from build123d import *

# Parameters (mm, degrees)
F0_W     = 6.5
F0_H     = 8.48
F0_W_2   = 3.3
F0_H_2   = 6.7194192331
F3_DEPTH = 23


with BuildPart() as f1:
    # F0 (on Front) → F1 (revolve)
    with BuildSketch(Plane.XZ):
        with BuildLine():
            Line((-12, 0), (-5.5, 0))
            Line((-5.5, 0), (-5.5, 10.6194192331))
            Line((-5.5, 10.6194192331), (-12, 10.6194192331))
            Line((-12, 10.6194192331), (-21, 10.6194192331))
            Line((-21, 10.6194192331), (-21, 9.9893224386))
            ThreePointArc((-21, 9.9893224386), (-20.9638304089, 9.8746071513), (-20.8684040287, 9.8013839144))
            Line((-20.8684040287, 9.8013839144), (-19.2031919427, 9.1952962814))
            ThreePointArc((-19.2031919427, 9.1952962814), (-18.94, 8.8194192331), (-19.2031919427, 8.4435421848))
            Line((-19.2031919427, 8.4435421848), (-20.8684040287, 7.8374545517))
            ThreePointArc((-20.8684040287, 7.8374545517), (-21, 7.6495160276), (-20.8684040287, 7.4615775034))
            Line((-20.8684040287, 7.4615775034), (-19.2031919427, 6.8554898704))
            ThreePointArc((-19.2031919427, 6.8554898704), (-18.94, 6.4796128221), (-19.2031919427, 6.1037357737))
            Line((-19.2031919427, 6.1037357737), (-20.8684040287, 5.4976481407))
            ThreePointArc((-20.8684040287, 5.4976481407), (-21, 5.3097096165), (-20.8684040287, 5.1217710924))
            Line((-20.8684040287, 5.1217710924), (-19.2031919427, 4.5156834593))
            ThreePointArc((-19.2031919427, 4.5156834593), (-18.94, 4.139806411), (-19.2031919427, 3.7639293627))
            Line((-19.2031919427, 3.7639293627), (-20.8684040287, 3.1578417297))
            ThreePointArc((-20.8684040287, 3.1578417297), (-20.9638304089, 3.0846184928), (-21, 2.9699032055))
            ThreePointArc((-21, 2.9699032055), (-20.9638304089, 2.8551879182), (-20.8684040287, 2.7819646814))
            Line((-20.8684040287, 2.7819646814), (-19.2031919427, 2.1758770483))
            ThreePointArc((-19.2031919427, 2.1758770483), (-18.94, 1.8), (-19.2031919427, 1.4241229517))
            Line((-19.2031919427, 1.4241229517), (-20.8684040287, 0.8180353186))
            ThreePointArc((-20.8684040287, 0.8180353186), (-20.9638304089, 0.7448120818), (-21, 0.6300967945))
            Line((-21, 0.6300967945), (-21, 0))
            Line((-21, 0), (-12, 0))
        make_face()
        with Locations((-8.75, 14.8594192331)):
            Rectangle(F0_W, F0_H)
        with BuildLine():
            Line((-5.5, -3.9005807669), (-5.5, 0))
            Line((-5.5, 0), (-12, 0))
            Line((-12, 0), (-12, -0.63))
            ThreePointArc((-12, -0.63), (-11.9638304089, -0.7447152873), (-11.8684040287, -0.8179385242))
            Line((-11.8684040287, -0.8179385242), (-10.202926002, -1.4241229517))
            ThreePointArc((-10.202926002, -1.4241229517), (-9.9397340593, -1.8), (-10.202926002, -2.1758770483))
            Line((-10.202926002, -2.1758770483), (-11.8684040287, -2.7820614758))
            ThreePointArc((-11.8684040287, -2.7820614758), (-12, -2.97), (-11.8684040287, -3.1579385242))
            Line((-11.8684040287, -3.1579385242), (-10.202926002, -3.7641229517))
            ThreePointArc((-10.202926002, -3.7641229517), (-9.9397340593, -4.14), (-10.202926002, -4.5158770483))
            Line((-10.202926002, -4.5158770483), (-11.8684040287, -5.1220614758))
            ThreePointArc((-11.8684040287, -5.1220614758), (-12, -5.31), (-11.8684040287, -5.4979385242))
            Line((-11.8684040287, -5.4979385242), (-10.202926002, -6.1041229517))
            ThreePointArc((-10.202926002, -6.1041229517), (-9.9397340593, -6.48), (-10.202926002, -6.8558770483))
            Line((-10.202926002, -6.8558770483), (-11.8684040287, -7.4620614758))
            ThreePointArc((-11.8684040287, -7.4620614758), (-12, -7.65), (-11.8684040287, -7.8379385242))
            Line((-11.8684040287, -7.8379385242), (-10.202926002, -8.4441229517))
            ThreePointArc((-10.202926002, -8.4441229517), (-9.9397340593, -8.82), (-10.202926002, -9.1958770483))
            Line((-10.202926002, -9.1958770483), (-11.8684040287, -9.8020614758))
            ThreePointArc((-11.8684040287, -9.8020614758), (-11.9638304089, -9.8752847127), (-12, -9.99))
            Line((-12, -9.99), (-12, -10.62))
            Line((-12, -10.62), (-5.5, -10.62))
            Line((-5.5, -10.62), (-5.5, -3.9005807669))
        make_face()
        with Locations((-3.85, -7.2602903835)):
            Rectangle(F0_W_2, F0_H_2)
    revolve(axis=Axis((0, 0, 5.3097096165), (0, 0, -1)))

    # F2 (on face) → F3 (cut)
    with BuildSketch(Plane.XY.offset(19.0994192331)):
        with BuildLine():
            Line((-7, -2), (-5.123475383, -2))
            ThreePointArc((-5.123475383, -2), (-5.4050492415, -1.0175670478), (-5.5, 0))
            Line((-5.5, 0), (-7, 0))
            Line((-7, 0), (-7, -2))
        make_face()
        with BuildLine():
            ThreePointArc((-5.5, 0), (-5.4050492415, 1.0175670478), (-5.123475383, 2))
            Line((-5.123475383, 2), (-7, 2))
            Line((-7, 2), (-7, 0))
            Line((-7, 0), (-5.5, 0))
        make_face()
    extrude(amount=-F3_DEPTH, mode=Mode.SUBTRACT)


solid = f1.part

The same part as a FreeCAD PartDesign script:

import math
import FreeCAD as App
import Part
import Sketcher
from FreeCAD import Vector
Q = App.Units.Quantity

doc = App.newDocument("Part")
body = doc.addObject("PartDesign::Body", "Body")

sketch1 = body.newObject("Sketcher::SketchObject", "Sketch")
sketch1.AttachmentSupport = (doc.getObject("XZ_Plane"), [""])
sketch1.MapMode = "FlatFace"
sketch1.addGeometry([
    Part.LineSegment(Vector(-5.5, 19.1, 0), Vector(-12, 19.1, 0)),
    Part.LineSegment(Vector(-12, 19.1, 0), Vector(-12, 10.62, 0)),
    Part.LineSegment(Vector(-12, 10.62, 0), Vector(-21, 10.62, 0)),
    Part.LineSegment(Vector(-21, 10.62, 0), Vector(-21, 9.99, 0)),
    Part.ArcOfCircle(Part.Circle(Vector(-20.8, 9.99, 0), Vector(0, 0, 1), 0.2), math.radians(180), math.radians(250)),
    Part.LineSegment(Vector(-20.87, 9.8, 0), Vector(-19.2, 9.2, 0)),
    Part.ArcOfCircle(Part.Circle(Vector(-19.34, 8.82, 0), Vector(0, 0, 1), 0.4), math.radians(-70), math.radians(70)),
    Part.LineSegment(Vector(-19.2, 8.44, 0), Vector(-20.87, 7.84, 0)),
    Part.ArcOfCircle(Part.Circle(Vector(-20.8, 7.65, 0), Vector(0, 0, 1), 0.2), math.radians(110), math.radians(250)),
    Part.LineSegment(Vector(-20.87, 7.46, 0), Vector(-19.2, 6.86, 0)),
    Part.ArcOfCircle(Part.Circle(Vector(-19.34, 6.48, 0), Vector(0, 0, 1), 0.4), math.radians(-70), math.radians(70)),
    Part.LineSegment(Vector(-19.2, 6.1, 0), Vector(-20.87, 5.5, 0)),
    Part.ArcOfCircle(Part.Circle(Vector(-20.8, 5.31, 0), Vector(0, 0, 1), 0.2), math.radians(110), math.radians(250)),
    Part.LineSegment(Vector(-20.87, 5.12, 0), Vector(-19.2, 4.52, 0)),
    Part.ArcOfCircle(Part.Circle(Vector(-19.34, 4.14, 0), Vector(0, 0, 1), 0.4), math.radians(-70), math.radians(70)),
    Part.LineSegment(Vector(-19.2, 3.76, 0), Vector(-20.87, 3.16, 0)),
    Part.ArcOfCircle(Part.Circle(Vector(-20.8, 2.97, 0), Vector(0, 0, 1), 0.2), math.radians(110), math.radians(180)),
    Part.ArcOfCircle(Part.Circle(Vector(-20.8, 2.97, 0), Vector(0, 0, 1), 0.2), math.radians(180), math.radians(250)),
    Part.LineSegment(Vector(-20.87, 2.78, 0), Vector(-19.2, 2.18, 0)),
    Part.ArcOfCircle(Part.Circle(Vector(-19.34, 1.8, 0), Vector(0, 0, 1), 0.4), math.radians(-70), math.radians(70)),
    Part.LineSegment(Vector(-19.2, 1.42, 0), Vector(-20.87, 0.82, 0)),
    Part.ArcOfCircle(Part.Circle(Vector(-20.8, 0.63, 0), Vector(0, 0, 1), 0.2), math.radians(110), math.radians(180)),
    Part.LineSegment(Vector(-21, 0.63, 0), Vector(-21, 0, 0)),
    Part.LineSegment(Vector(-21, 0, 0), Vector(-12, 0, 0)),
    Part.LineSegment(Vector(-12, 0, 0), Vector(-12, -0.63, 0)),
    Part.ArcOfCircle(Part.Circle(Vector(-11.8, -0.63, 0), Vector(0, 0, 1), 0.2), math.radians(180), math.radians(250)),
    Part.LineSegment(Vector(-11.87, -0.82, 0), Vector(-10.2, -1.42, 0)),
    Part.ArcOfCircle(Part.Circle(Vector(-10.34, -1.8, 0), Vector(0, 0, 1), 0.4), math.radians(-70), math.radians(70)),
    Part.LineSegment(Vector(-10.2, -2.18, 0), Vector(-11.87, -2.78, 0)),
    Part.ArcOfCircle(Part.Circle(Vector(-11.8, -2.97, 0), Vector(0, 0, 1), 0.2), math.radians(110), math.radians(250)),
    Part.LineSegment(Vector(-11.87, -3.16, 0), Vector(-10.2, -3.76, 0)),
    Part.ArcOfCircle(Part.Circle(Vector(-10.34, -4.14, 0), Vector(0, 0, 1), 0.4), math.radians(-70), math.radians(70)),
    Part.LineSegment(Vector(-10.2, -4.52, 0), Vector(-11.87, -5.12, 0)),
    Part.ArcOfCircle(Part.Circle(Vector(-11.8, -5.31, 0), Vector(0, 0, 1), 0.2), math.radians(110), math.radians(250)),
    Part.LineSegment(Vector(-11.87, -5.5, 0), Vector(-10.2, -6.1, 0)),
    Part.ArcOfCircle(Part.Circle(Vector(-10.34, -6.48, 0), Vector(0, 0, 1), 0.4), math.radians(-70), math.radians(70)),
    Part.LineSegment(Vector(-10.2, -6.86, 0), Vector(-11.87, -7.46, 0)),
    Part.ArcOfCircle(Part.Circle(Vector(-11.8, -7.65, 0), Vector(0, 0, 1), 0.2), math.radians(110), math.radians(250)),
    Part.LineSegment(Vector(-11.87, -7.84, 0), Vector(-10.2, -8.44, 0)),
    Part.ArcOfCircle(Part.Circle(Vector(-10.34, -8.82, 0), Vector(0, 0, 1), 0.4), math.radians(-70), math.radians(70)),
    Part.LineSegment(Vector(-10.2, -9.2, 0), Vector(-11.87, -9.8, 0)),
    Part.ArcOfCircle(Part.Circle(Vector(-11.8, -9.99, 0), Vector(0, 0, 1), 0.2), math.radians(110), math.radians(180)),
    Part.LineSegment(Vector(-12, -9.99, 0), Vector(-12, -10.62, 0)),
    Part.LineSegment(Vector(-12, -10.62, 0), Vector(-5.5, -10.62, 0)),
    Part.LineSegment(Vector(-5.5, -10.62, 0), Vector(-2.2, -10.62, 0)),
    Part.LineSegment(Vector(-2.2, -10.62, 0), Vector(-2.2, -3.9, 0)),
    Part.LineSegment(Vector(-2.2, -3.9, 0), Vector(-5.5, -3.9, 0)),
    Part.LineSegment(Vector(-5.5, -3.9, 0), Vector(-5.5, 19.1, 0)),
], False)
sketch1.addConstraint([
    Sketcher.Constraint("Coincident", 0, 2, 1, 1),
    Sketcher.Constraint("Coincident", 1, 2, 2, 1),
    Sketcher.Constraint("Coincident", 2, 2, 3, 1),
    Sketcher.Constraint("Tangent", 3, 2, 4, 1),
    Sketcher.Constraint("Tangent", 4, 2, 5, 1),
    Sketcher.Constraint("Tangent", 5, 2, 6, 2),
    Sketcher.Constraint("Tangent", 6, 1, 7, 1),
    Sketcher.Constraint("Tangent", 7, 2, 8, 1),
    Sketcher.Constraint("Tangent", 8, 2, 9, 1),
    Sketcher.Constraint("Tangent", 9, 2, 10, 2),
    Sketcher.Constraint("Tangent", 10, 1, 11, 1),
    Sketcher.Constraint("Tangent", 11, 2, 12, 1),
    Sketcher.Constraint("Tangent", 12, 2, 13, 1),
    Sketcher.Constraint("Tangent", 13, 2, 14, 2),
    Sketcher.Constraint("Tangent", 14, 1, 15, 1),
    Sketcher.Constraint("Tangent", 15, 2, 16, 1),
    Sketcher.Constraint("Tangent", 16, 2, 17, 1),
    Sketcher.Constraint("Tangent", 17, 2, 18, 1),
    Sketcher.Constraint("Tangent", 18, 2, 19, 2),
    Sketcher.Constraint("Tangent", 19, 1, 20, 1),
    Sketcher.Constraint("Tangent", 20, 2, 21, 1),
    Sketcher.Constraint("Tangent", 21, 2, 22, 1),
    Sketcher.Constraint("Coincident", 22, 2, 23, 1),
    Sketcher.Constraint("Coincident", 23, 2, 24, 1),
    Sketcher.Constraint("Tangent", 24, 2, 25, 1),
    Sketcher.Constraint("Tangent", 25, 2, 26, 1),
    Sketcher.Constraint("Tangent", 26, 2, 27, 2),
    Sketcher.Constraint("Tangent", 27, 1, 28, 1),
    Sketcher.Constraint("Tangent", 28, 2, 29, 1),
    Sketcher.Constraint("Tangent", 29, 2, 30, 1),
    Sketcher.Constraint("Tangent", 30, 2, 31, 2),
    Sketcher.Constraint("Tangent", 31, 1, 32, 1),
    Sketcher.Constraint("Tangent", 32, 2, 33, 1),
    Sketcher.Constraint("Tangent", 33, 2, 34, 1),
    Sketcher.Constraint("Tangent", 34, 2, 35, 2),
    Sketcher.Constraint("Tangent", 35, 1, 36, 1),
    Sketcher.Constraint("Tangent", 36, 2, 37, 1),
    Sketcher.Constraint("Tangent", 37, 2, 38, 1),
    Sketcher.Constraint("Tangent", 38, 2, 39, 2),
    Sketcher.Constraint("Tangent", 39, 1, 40, 1),
    Sketcher.Constraint("Tangent", 40, 2, 41, 1),
    Sketcher.Constraint("Tangent", 41, 2, 42, 1),
    Sketcher.Constraint("Coincident", 42, 2, 43, 1),
    Sketcher.Constraint("Coincident", 43, 2, 44, 1),
    Sketcher.Constraint("Coincident", 44, 2, 45, 1),
    Sketcher.Constraint("Coincident", 45, 2, 46, 1),
    Sketcher.Constraint("Coincident", 46, 2, 47, 1),
    Sketcher.Constraint("Coincident", 47, 2, 0, 1),
    Sketcher.Constraint("Horizontal", 0),
    Sketcher.Constraint("Vertical", 1),
    Sketcher.Constraint("Horizontal", 2),
    Sketcher.Constraint("Vertical", 3),
    Sketcher.Constraint("Vertical", 22),
    Sketcher.Constraint("Horizontal", 23),
    Sketcher.Constraint("Vertical", 24),
    Sketcher.Constraint("Vertical", 42),
    Sketcher.Constraint("Horizontal", 43),
    Sketcher.Constraint("Horizontal", 44),
    Sketcher.Constraint("Vertical", 45),
    Sketcher.Constraint("Horizontal", 46),
    Sketcher.Constraint("Vertical", 47),
    Sketcher.Constraint("Equal", 4, 8),
    Sketcher.Constraint("Equal", 6, 10),
    Sketcher.Constraint("Equal", 8, 12),
    Sketcher.Constraint("Equal", 10, 14),
    Sketcher.Constraint("Equal", 12, 16),
    Sketcher.Constraint("Equal", 16, 17),
    Sketcher.Constraint("Equal", 14, 19),
    Sketcher.Constraint("Equal", 17, 21),
    Sketcher.Constraint("Equal", 21, 25),
    Sketcher.Constraint("Equal", 19, 27),
    Sketcher.Constraint("Equal", 25, 29),
    Sketcher.Constraint("Equal", 27, 31),
    Sketcher.Constraint("Equal", 29, 33),
    Sketcher.Constraint("Equal", 31, 35),
    Sketcher.Constraint("Equal", 33, 37),
    Sketcher.Constraint("Equal", 35, 39),
    Sketcher.Constraint("Equal", 37, 41),
    Sketcher.Constraint("PointOnObject", 22, 2, -1),
    Sketcher.Constraint("Parallel", 5, 9),
    Sketcher.Constraint("Parallel", 7, 11),
    Sketcher.Constraint("Parallel", 9, 13),
    Sketcher.Constraint("Parallel", 11, 15),
    Sketcher.Constraint("Parallel", 13, 18),
    Sketcher.Constraint("Parallel", 15, 20),
    Sketcher.Constraint("Parallel", 18, 26),
    Sketcher.Constraint("Parallel", 20, 28),
    Sketcher.Constraint("Parallel", 26, 30),
    Sketcher.Constraint("Parallel", 28, 32),
    Sketcher.Constraint("Parallel", 30, 34),
    Sketcher.Constraint("Parallel", 32, 36),
    Sketcher.Constraint("Parallel", 34, 38),
    Sketcher.Constraint("Parallel", 36, 40),
    Sketcher.Constraint("Horizontal", 17, 3, 16, 2),
    Sketcher.Constraint("Vertical", 4, 3, 8, 3),
    Sketcher.Constraint("Vertical", 6, 3, 10, 3),
    Sketcher.Constraint("Vertical", 8, 3, 12, 3),
    Sketcher.Constraint("Vertical", 10, 3, 14, 3),
    Sketcher.Constraint("Vertical", 12, 3, 16, 3),
    Sketcher.Constraint("Vertical", 14, 3, 19, 3),
    Sketcher.Constraint("Vertical", 17, 3, 21, 3),
    Sketcher.Constraint("Vertical", 25, 3, 29, 3),
    Sketcher.Constraint("Vertical", 27, 3, 31, 3),
    Sketcher.Constraint("Vertical", 29, 3, 33, 3),
    Sketcher.Constraint("Vertical", 31, 3, 35, 3),
    Sketcher.Constraint("Vertical", 33, 3, 37, 3),
    Sketcher.Constraint("Vertical", 35, 3, 39, 3),
    Sketcher.Constraint("Vertical", 37, 3, 41, 3),
    Sketcher.Constraint("Vertical", 5, 2, 6, 1),
    Sketcher.Constraint("Vertical", 1, 2, 23, 2),
    Sketcher.Constraint("Vertical", 43, 2, 46, 2),
    Sketcher.Constraint("Equal", 3, 22),
    Sketcher.Constraint("Equal", 24, 42),
    Sketcher.Constraint("Radius", 4, Q("0.2 mm")),
    Sketcher.Constraint("Radius", 6, Q("0.4 mm")),
    Sketcher.Constraint("DistanceX", 2, 2, 2, 1, Q("9 mm")),
    Sketcher.Constraint("DistanceY", 47, 1, 47, 2, Q("23 mm")),
    Sketcher.Constraint("Angle", 5, Q("-20 deg")),
    Sketcher.Constraint("DistanceX", 0, 2, 0, 1, Q("6.5 mm")),
    Sketcher.Constraint("DistanceX", 44, 1, 44, 2, Q("3.3 mm")),
    Sketcher.Constraint("DistanceX", 0, 2, -1, 1, Q("12 mm")),
    Sketcher.Constraint("DistanceY", 1, 2, 1, 1, Q("8.48 mm")),
    Sketcher.Constraint("DistanceY", 24, 2, 24, 1, Q("0.63 mm")),
    Sketcher.Constraint("DistanceY", -1, 1, 19, 3, Q("1.8 mm")),
    Sketcher.Constraint("DistanceY", 27, 3, -1, 1, Q("1.8 mm")),
    Sketcher.Constraint("DistanceX", 6, 3, -1, 1, Q("19.34 mm")),
])
revolution = body.newObject("PartDesign::Revolution", "Revolution")
revolution.Profile = sketch1
revolution.ReferenceAxis = (sketch1, ["V_Axis"])
revolution.Angle = 360

sketch2 = body.newObject("Sketcher::SketchObject", "Sketch001")
sketch2.AttachmentSupport = (doc.getObject("XY_Plane"), [""])
sketch2.MapMode = "FlatFace"
sketch2.AttachmentOffset = App.Placement(Vector(0, 0, 19.099419), App.Rotation())
sketch2.addGeometry([
    Part.LineSegment(Vector(-7, -2, 0), Vector(-5.1, -2, 0)),
    Part.ArcOfCircle(Part.Circle(Vector(0, 0, 0), Vector(0, 0, 1), 5.5), math.radians(180), math.radians(201)),
    Part.ArcOfCircle(Part.Circle(Vector(0, 0, 0), Vector(0, 0, 1), 5.5), math.radians(159), math.radians(180)),
    Part.LineSegment(Vector(-5.1, 2, 0), Vector(-7, 2, 0)),
    Part.LineSegment(Vector(-7, 2, 0), Vector(-7, -2, 0)),
], False)
sketch2.addConstraint([
    Sketcher.Constraint("Coincident", 0, 2, 1, 2),
    Sketcher.Constraint("Tangent", 1, 1, 2, 2),
    Sketcher.Constraint("Coincident", 2, 1, 3, 1),
    Sketcher.Constraint("Coincident", 3, 2, 4, 1),
    Sketcher.Constraint("Coincident", 4, 2, 0, 1),
    Sketcher.Constraint("Horizontal", 0),
    Sketcher.Constraint("Horizontal", 3),
    Sketcher.Constraint("Vertical", 4),
    Sketcher.Constraint("Coincident", 1, 3, -1, 1),
    Sketcher.Constraint("Equal", 1, 2),
    Sketcher.Constraint("PointOnObject", 1, 1, -1),
    Sketcher.Constraint("Vertical", 0, 2, 2, 1),
    Sketcher.Constraint("Radius", 1, Q("5.5 mm")),
    Sketcher.Constraint("DistanceY", 4, 2, 4, 1, Q("4 mm")),
    Sketcher.Constraint("DistanceX", 3, 2, -1, 1, Q("7 mm")),
])
pocket1 = body.newObject("PartDesign::Pocket", "Pocket")
pocket1.Profile = sketch2
pocket1.Length = 23

doc.recompute()
